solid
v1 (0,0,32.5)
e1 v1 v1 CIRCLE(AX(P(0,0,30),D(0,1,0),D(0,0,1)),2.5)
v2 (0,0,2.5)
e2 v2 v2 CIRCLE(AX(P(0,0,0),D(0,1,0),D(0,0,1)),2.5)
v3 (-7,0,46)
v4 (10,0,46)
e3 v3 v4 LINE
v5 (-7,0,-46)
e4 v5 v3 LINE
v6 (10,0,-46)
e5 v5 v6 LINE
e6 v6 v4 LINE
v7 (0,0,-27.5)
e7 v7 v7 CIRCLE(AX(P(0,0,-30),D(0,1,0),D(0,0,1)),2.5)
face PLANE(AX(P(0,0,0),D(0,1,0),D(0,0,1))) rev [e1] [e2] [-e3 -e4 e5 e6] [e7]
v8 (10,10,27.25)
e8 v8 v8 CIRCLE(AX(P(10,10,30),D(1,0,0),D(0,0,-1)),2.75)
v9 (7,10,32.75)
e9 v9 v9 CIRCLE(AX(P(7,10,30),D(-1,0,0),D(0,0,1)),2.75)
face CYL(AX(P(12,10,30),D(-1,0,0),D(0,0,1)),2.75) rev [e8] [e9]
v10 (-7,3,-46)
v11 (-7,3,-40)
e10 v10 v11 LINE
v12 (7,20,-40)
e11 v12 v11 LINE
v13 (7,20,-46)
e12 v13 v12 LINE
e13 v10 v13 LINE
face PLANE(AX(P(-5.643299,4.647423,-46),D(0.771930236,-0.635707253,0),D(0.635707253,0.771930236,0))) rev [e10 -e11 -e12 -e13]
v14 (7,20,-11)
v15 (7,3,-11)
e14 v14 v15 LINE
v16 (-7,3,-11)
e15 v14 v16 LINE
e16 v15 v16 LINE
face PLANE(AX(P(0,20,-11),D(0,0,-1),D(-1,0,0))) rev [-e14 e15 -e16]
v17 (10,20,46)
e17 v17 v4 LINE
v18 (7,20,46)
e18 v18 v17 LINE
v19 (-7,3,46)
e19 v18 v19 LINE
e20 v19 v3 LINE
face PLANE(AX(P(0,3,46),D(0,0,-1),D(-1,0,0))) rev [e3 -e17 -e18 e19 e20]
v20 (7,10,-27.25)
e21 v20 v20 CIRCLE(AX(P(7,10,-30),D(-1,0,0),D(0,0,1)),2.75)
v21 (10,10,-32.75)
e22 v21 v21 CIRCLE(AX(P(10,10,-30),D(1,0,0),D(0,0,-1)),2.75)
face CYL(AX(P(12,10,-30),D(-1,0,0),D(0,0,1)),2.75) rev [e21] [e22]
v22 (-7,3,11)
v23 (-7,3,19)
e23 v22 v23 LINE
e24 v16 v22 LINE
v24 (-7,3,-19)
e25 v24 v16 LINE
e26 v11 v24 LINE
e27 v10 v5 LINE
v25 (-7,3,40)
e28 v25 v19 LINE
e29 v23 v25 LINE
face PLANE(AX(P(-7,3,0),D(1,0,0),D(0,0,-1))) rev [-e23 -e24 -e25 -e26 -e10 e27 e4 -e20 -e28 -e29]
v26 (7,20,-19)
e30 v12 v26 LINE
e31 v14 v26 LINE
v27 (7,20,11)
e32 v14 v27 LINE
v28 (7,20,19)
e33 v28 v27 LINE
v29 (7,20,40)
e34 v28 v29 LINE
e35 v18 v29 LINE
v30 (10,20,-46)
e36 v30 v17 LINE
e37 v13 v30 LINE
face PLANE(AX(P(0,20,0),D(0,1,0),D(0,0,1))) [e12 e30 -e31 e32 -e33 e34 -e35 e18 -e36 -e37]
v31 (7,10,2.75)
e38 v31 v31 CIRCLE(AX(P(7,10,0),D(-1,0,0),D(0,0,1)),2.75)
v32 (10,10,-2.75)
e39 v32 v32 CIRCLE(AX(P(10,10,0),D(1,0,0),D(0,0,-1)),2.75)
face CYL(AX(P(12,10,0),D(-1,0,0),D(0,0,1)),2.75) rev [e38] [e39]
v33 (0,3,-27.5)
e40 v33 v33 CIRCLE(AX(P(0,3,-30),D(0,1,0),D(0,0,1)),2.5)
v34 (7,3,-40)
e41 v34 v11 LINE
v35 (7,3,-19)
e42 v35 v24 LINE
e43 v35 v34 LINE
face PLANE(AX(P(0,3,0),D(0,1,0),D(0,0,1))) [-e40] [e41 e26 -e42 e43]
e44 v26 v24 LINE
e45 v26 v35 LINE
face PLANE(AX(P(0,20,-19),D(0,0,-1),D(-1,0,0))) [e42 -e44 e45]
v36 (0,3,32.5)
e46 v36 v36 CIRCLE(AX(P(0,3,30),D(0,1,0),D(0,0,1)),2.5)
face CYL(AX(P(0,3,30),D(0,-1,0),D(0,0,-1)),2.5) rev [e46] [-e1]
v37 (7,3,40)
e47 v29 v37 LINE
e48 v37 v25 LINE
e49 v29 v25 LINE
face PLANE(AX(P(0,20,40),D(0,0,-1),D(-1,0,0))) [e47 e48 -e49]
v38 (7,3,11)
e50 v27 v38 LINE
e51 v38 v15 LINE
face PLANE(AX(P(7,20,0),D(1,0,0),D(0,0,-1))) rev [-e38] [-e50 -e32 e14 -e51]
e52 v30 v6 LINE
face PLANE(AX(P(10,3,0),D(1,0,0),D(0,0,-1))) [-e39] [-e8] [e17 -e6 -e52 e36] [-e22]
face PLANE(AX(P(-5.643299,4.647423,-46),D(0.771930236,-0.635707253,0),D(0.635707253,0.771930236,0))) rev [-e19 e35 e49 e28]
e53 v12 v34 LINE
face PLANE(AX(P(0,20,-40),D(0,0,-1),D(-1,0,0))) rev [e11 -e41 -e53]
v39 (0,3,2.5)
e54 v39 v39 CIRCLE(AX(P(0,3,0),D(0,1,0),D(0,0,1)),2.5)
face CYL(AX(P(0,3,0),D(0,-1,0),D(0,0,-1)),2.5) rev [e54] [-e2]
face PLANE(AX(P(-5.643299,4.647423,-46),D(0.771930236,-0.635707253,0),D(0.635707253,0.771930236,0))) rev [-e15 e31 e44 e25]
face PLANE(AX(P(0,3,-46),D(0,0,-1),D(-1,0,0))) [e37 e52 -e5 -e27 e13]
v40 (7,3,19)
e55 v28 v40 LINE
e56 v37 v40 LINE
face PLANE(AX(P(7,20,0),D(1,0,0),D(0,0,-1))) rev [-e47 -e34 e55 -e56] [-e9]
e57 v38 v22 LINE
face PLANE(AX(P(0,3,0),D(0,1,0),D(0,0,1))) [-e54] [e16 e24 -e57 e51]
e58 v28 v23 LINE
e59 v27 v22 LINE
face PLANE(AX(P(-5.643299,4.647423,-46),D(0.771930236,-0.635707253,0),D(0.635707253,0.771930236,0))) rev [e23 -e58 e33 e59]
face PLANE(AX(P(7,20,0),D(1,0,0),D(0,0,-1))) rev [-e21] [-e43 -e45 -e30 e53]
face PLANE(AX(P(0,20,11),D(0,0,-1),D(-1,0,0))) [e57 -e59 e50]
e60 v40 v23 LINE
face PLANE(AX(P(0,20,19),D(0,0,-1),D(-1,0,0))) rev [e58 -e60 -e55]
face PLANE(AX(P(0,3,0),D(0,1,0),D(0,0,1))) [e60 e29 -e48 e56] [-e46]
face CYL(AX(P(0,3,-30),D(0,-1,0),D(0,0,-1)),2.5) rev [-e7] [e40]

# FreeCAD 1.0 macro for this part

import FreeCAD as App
import Part
import Sketcher
from FreeCAD import Vector
Q = App.Units.Quantity


def add_polygon(sketch, points):
    """Adds a closed chain of lines whose ends are joined by coincident constraints."""
    first, n = sketch.GeometryCount, len(points)
    for a, b in zip(points, points[1:] + points[:1]):
        sketch.addGeometry(Part.LineSegment(App.Vector(*a, 0), App.Vector(*b, 0)), False)
    for i in range(n):
        sketch.addConstraint(Sketcher.Constraint("Coincident", first + i, 2, first + (i + 1) % n, 1))

doc = App.newDocument("Part")
body = doc.addObject("PartDesign::Body", "Body")

sketch1 = body.newObject("Sketcher::SketchObject", "Sketch")
sketch1.AttachmentSupport = (doc.getObject("XZ_Plane"), [""])
sketch1.MapMode = "FlatFace"
add_polygon(sketch1, [(-7, -46), (-7, 46), (10, 46), (10, -46)])
sketch1.addGeometry(Part.Circle(Vector(0, -30, 0), Vector(0, 0, 1), 2.5), False)
sketch1.addGeometry(Part.Circle(Vector(0, 0, 0), Vector(0, 0, 1), 2.5), False)
sketch1.addGeometry(Part.Circle(Vector(0, 30, 0), Vector(0, 0, 1), 2.5), False)
sketch1.addConstraint([
    Sketcher.Constraint("Vertical", 0),
    Sketcher.Constraint("Horizontal", 1),
    Sketcher.Constraint("Vertical", 2),
    Sketcher.Constraint("Horizontal", 3),
    Sketcher.Constraint("Coincident", 5, 3, -1, 1),
    Sketcher.Constraint("Equal", 4, 5),
    Sketcher.Constraint("Equal", 5, 6),
    Sketcher.Constraint("Symmetric", 4, 3, 6, 3, -1, 1),
    Sketcher.Constraint("PointOnObject", 4, 3, -2),
    Sketcher.Constraint("Diameter", 4, Q("5 mm")),
    Sketcher.Constraint("DistanceX", 1, 1, 1, 2, Q("17 mm")),
    Sketcher.Constraint("DistanceY", 0, 1, 0, 2, Q("92 mm")),
    Sketcher.Constraint("DistanceY", 4, 3, -1, 1, Q("30 mm")),
    Sketcher.Constraint("DistanceX", 0, 2, -1, 1, Q("7 mm")),
    Sketcher.Constraint("DistanceY", -1, 1, 0, 2, Q("46 mm")),
])
pad1 = body.newObject("PartDesign::Pad", "Pad")
pad1.Profile = sketch1
pad1.Length = 3
pad1.Reversed = True

sketch2 = body.newObject("Sketcher::SketchObject", "Sketch001")
sketch2.AttachmentSupport = (doc.getObject("XZ_Plane"), [""])
sketch2.MapMode = "FlatFace"
add_polygon(sketch2, [(-7, -46), (-7, -40), (7, -40), (7, -19), (-7, -19), (-7, -11), (7, -11), (7, 11), (-7, 11), (-7, 19), (7, 19), (7, 40), (-7, 40), (-7, 46), (10, 46), (10, -46)])
sketch2.addConstraint([
    Sketcher.Constraint("Vertical", 0),
    Sketcher.Constraint("Horizontal", 1),
    Sketcher.Constraint("Vertical", 2),
    Sketcher.Constraint("Horizontal", 3),
    Sketcher.Constraint("Vertical", 4),
    Sketcher.Constraint("Horizontal", 5),
    Sketcher.Constraint("Vertical", 6),
    Sketcher.Constraint("Horizontal", 7),
    Sketcher.Constraint("Vertical", 8),
    Sketcher.Constraint("Horizontal", 9),
    Sketcher.Constraint("Vertical", 10),
    Sketcher.Constraint("Horizontal", 11),
    Sketcher.Constraint("Vertical", 12),
    Sketcher.Constraint("Horizontal", 13),
    Sketcher.Constraint("Vertical", 14),
    Sketcher.Constraint("Horizontal", 15),
    Sketcher.Constraint("Symmetric", 4, 2, 6, 2, -1, 1),
    Sketcher.Constraint("Symmetric", 2, 2, 8, 2, -1, 1),
    Sketcher.Constraint("Symmetric", 0, 2, 10, 2, -1, 1),
    Sketcher.Constraint("Symmetric", 12, 2, 15, 2, -1),
    Sketcher.Constraint("Vertical", 0, 2, 3, 2),
    Sketcher.Constraint("Vertical", 2, 2, 5, 2),
    Sketcher.Constraint("DistanceX", 1, 1, 1, 2, Q("14 mm")),
    Sketcher.Constraint("DistanceX", 13, 1, 13, 2, Q("17 mm")),
    Sketcher.Constraint("DistanceY", 0, 1, 0, 2, Q("6 mm")),
    Sketcher.Constraint("DistanceY", 2, 1, 2, 2, Q("21 mm")),
    Sketcher.Constraint("DistanceY", 4, 1, 4, 2, Q("8 mm")),
    Sketcher.Constraint("DistanceY", 6, 1, 6, 2, Q("22 mm")),
])
pad2 = body.newObject("PartDesign::Pad", "Pad001")
pad2.Profile = sketch2
pad2.Length = 20
pad2.Reversed = True

sketch3 = body.newObject("Sketcher::SketchObject", "Sketch002")
sketch3.AttachmentSupport = (doc.getObject("XY_Plane"), [""])
sketch3.MapMode = "FlatFace"
sketch3.AttachmentOffset = App.Placement(Vector(0, 0, 46), App.Rotation())
add_polygon(sketch3, [(-7, 20), (-7, 3), (7, 20)])
sketch3.addConstraint([
    Sketcher.Constraint("Vertical", 0),
    Sketcher.Constraint("Horizontal", 2),
    Sketcher.Constraint("DistanceX", 2, 2, 2, 1, Q("14 mm")),
    Sketcher.Constraint("DistanceY", 0, 2, 0, 1, Q("17 mm")),
    Sketcher.Constraint("DistanceX", 0, 2, -1, 1, Q("7 mm")),
    Sketcher.Constraint("DistanceY", -1, 1, 0, 2, Q("3 mm")),
])
pocket1 = body.newObject("PartDesign::Pocket", "Pocket")
pocket1.Profile = sketch3
pocket1.Type = "ThroughAll"
pocket1.Midplane = True

sketch4 = body.newObject("Sketcher::SketchObject", "Sketch003")
sketch4.AttachmentSupport = (doc.getObject("YZ_Plane"), [""])
sketch4.MapMode = "FlatFace"
sketch4.AttachmentOffset = App.Placement(Vector(0, 0, 7), App.Rotation())
sketch4.addGeometry([
    Part.Circle(Vector(10, -30, 0), Vector(0, 0, 1), 2.8),
    Part.Circle(Vector(10, 0, 0), Vector(0, 0, 1), 2.8),
    Part.Circle(Vector(10, 30, 0), Vector(0, 0, 1), 2.8),
], False)
sketch4.addConstraint([
    Sketcher.Constraint("Equal", 0, 1),
    Sketcher.Constraint("Equal", 1, 2),
    Sketcher.Constraint("Symmetric", 0, 3, 2, 3, -1),
    Sketcher.Constraint("PointOnObject", 1, 3, -1),
    Sketcher.Constraint("Vertical", 0, 3, 1, 3),
    Sketcher.Constraint("Diameter", 0, Q("5.5 mm")),
    Sketcher.Constraint("DistanceX", -1, 1, 0, 3, Q("10 mm")),
    Sketcher.Constraint("DistanceY", 0, 3, -1, 1, Q("30 mm")),
])
pocket2 = body.newObject("PartDesign::Pocket", "Pocket001")
pocket2.Profile = sketch4
pocket2.Length = 5
pocket2.Reversed = True

doc.recompute()
